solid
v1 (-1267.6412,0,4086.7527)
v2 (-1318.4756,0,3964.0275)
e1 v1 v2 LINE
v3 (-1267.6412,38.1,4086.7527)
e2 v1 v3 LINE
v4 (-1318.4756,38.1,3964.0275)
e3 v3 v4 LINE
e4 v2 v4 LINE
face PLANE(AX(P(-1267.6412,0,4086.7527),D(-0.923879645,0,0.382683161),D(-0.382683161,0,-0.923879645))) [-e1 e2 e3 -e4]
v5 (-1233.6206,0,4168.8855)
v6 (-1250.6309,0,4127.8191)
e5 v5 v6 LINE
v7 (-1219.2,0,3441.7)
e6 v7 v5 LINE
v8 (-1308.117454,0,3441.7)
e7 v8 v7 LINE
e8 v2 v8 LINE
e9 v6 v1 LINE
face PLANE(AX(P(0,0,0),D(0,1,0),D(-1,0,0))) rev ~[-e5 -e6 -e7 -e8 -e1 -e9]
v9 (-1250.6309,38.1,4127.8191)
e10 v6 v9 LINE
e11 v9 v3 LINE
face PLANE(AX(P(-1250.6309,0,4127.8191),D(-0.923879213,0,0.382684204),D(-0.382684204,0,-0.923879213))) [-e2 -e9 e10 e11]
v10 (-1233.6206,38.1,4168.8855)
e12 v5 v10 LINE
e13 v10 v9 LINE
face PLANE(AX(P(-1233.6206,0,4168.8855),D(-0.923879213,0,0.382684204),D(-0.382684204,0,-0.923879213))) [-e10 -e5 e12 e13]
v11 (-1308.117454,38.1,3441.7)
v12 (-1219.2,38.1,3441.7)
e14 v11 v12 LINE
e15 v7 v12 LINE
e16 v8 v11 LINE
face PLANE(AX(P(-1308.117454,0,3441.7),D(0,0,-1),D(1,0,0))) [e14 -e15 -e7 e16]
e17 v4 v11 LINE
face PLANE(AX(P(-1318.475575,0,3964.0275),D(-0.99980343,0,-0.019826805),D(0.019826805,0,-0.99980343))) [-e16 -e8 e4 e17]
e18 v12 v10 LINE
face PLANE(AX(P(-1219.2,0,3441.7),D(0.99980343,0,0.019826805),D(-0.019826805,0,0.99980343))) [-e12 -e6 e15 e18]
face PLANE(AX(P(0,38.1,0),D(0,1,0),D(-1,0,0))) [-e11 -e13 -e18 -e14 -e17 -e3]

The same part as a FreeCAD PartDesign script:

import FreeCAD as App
import Part
import Sketcher
Q = App.Units.Quantity

doc = App.newDocument("Part")
params = doc.addObject("Spreadsheet::Sheet", "Params")
for row, (alias, value) in enumerate([
    ("sketch1_length", "3.5 in"),
    ("pad1_length", "1.5 in"),
], start=1):
    params.set(f"A{row}", alias)
    params.set(f"B{row}", "=" + value)
    params.setAlias(f"B{row}", alias)

body = doc.addObject("PartDesign::Body", "Body")

sketch1 = body.newObject("Sketcher::SketchObject", "Sketch")
sketch1.AttachmentSupport = (doc.getObject("XZ_Plane"), [""])
sketch1.MapMode = "FlatFace"
sketch1.addGeometry([
    Part.LineSegment(App.Vector(-1233.6206, 4168.8855, 0), App.Vector(-1219.2, 3441.7, 0)),
    Part.LineSegment(App.Vector(-1219.2, 3441.7, 0), App.Vector(-1308.117454, 3441.7, 0)),
    Part.LineSegment(App.Vector(-1308.117454, 3441.7, 0), App.Vector(-1318.475575, 3964.0275, 0)),
    Part.LineSegment(App.Vector(-1318.4756, 3964.0275, 0), App.Vector(-1267.6412, 4086.7527, 0)),
    Part.LineSegment(App.Vector(-1267.6412, 4086.7527, 0), App.Vector(-1233.6206, 4168.8855, 0)),
], False)
sketch1.addConstraint([
    Sketcher.Constraint("Coincident", 0, 2, 1, 1),
    Sketcher.Constraint("Coincident", 1, 2, 2, 1),
    Sketcher.Constraint("Coincident", 2, 2, 3, 1),
    Sketcher.Constraint("Coincident", 3, 2, 4, 1),
    Sketcher.Constraint("Coincident", 4, 2, 0, 1),
    Sketcher.Constraint("Horizontal", 1),
    Sketcher.Constraint("DistanceX", 0, 2, -1, 1, Q("48 in")),
    Sketcher.Constraint("Distance", 4, Q("3.5 in")),
    Sketcher.Constraint("DistanceY", -1, 1, 0, 2, Q("135.5 in")),
    Sketcher.Constraint("Distance", 3, Q("5.2298 in")),
    Sketcher.Constraint("DistanceX", 1, 2, 1, 1, Q("3.500689 in")),
    Sketcher.Constraint("DistanceX", 2, 2, 1, 2, Q("0.4078 in")),
    Sketcher.Constraint("DistanceY", 2, 2, 3, 2, Q("4.8317 in")),
    Sketcher.Constraint("DistanceX", 3, 2, 4, 2, Q("1.3394 in")),
    Sketcher.Constraint("Distance", 0, 727.3285),
])
sketch1.setExpression("Constraints[7]", "Params.sketch1_length")
pad1 = body.newObject("PartDesign::Pad", "Pad")
pad1.Profile = sketch1
pad1.setExpression("Length", "Params.pad1_length")
pad1.Reversed = True

doc.recompute()
